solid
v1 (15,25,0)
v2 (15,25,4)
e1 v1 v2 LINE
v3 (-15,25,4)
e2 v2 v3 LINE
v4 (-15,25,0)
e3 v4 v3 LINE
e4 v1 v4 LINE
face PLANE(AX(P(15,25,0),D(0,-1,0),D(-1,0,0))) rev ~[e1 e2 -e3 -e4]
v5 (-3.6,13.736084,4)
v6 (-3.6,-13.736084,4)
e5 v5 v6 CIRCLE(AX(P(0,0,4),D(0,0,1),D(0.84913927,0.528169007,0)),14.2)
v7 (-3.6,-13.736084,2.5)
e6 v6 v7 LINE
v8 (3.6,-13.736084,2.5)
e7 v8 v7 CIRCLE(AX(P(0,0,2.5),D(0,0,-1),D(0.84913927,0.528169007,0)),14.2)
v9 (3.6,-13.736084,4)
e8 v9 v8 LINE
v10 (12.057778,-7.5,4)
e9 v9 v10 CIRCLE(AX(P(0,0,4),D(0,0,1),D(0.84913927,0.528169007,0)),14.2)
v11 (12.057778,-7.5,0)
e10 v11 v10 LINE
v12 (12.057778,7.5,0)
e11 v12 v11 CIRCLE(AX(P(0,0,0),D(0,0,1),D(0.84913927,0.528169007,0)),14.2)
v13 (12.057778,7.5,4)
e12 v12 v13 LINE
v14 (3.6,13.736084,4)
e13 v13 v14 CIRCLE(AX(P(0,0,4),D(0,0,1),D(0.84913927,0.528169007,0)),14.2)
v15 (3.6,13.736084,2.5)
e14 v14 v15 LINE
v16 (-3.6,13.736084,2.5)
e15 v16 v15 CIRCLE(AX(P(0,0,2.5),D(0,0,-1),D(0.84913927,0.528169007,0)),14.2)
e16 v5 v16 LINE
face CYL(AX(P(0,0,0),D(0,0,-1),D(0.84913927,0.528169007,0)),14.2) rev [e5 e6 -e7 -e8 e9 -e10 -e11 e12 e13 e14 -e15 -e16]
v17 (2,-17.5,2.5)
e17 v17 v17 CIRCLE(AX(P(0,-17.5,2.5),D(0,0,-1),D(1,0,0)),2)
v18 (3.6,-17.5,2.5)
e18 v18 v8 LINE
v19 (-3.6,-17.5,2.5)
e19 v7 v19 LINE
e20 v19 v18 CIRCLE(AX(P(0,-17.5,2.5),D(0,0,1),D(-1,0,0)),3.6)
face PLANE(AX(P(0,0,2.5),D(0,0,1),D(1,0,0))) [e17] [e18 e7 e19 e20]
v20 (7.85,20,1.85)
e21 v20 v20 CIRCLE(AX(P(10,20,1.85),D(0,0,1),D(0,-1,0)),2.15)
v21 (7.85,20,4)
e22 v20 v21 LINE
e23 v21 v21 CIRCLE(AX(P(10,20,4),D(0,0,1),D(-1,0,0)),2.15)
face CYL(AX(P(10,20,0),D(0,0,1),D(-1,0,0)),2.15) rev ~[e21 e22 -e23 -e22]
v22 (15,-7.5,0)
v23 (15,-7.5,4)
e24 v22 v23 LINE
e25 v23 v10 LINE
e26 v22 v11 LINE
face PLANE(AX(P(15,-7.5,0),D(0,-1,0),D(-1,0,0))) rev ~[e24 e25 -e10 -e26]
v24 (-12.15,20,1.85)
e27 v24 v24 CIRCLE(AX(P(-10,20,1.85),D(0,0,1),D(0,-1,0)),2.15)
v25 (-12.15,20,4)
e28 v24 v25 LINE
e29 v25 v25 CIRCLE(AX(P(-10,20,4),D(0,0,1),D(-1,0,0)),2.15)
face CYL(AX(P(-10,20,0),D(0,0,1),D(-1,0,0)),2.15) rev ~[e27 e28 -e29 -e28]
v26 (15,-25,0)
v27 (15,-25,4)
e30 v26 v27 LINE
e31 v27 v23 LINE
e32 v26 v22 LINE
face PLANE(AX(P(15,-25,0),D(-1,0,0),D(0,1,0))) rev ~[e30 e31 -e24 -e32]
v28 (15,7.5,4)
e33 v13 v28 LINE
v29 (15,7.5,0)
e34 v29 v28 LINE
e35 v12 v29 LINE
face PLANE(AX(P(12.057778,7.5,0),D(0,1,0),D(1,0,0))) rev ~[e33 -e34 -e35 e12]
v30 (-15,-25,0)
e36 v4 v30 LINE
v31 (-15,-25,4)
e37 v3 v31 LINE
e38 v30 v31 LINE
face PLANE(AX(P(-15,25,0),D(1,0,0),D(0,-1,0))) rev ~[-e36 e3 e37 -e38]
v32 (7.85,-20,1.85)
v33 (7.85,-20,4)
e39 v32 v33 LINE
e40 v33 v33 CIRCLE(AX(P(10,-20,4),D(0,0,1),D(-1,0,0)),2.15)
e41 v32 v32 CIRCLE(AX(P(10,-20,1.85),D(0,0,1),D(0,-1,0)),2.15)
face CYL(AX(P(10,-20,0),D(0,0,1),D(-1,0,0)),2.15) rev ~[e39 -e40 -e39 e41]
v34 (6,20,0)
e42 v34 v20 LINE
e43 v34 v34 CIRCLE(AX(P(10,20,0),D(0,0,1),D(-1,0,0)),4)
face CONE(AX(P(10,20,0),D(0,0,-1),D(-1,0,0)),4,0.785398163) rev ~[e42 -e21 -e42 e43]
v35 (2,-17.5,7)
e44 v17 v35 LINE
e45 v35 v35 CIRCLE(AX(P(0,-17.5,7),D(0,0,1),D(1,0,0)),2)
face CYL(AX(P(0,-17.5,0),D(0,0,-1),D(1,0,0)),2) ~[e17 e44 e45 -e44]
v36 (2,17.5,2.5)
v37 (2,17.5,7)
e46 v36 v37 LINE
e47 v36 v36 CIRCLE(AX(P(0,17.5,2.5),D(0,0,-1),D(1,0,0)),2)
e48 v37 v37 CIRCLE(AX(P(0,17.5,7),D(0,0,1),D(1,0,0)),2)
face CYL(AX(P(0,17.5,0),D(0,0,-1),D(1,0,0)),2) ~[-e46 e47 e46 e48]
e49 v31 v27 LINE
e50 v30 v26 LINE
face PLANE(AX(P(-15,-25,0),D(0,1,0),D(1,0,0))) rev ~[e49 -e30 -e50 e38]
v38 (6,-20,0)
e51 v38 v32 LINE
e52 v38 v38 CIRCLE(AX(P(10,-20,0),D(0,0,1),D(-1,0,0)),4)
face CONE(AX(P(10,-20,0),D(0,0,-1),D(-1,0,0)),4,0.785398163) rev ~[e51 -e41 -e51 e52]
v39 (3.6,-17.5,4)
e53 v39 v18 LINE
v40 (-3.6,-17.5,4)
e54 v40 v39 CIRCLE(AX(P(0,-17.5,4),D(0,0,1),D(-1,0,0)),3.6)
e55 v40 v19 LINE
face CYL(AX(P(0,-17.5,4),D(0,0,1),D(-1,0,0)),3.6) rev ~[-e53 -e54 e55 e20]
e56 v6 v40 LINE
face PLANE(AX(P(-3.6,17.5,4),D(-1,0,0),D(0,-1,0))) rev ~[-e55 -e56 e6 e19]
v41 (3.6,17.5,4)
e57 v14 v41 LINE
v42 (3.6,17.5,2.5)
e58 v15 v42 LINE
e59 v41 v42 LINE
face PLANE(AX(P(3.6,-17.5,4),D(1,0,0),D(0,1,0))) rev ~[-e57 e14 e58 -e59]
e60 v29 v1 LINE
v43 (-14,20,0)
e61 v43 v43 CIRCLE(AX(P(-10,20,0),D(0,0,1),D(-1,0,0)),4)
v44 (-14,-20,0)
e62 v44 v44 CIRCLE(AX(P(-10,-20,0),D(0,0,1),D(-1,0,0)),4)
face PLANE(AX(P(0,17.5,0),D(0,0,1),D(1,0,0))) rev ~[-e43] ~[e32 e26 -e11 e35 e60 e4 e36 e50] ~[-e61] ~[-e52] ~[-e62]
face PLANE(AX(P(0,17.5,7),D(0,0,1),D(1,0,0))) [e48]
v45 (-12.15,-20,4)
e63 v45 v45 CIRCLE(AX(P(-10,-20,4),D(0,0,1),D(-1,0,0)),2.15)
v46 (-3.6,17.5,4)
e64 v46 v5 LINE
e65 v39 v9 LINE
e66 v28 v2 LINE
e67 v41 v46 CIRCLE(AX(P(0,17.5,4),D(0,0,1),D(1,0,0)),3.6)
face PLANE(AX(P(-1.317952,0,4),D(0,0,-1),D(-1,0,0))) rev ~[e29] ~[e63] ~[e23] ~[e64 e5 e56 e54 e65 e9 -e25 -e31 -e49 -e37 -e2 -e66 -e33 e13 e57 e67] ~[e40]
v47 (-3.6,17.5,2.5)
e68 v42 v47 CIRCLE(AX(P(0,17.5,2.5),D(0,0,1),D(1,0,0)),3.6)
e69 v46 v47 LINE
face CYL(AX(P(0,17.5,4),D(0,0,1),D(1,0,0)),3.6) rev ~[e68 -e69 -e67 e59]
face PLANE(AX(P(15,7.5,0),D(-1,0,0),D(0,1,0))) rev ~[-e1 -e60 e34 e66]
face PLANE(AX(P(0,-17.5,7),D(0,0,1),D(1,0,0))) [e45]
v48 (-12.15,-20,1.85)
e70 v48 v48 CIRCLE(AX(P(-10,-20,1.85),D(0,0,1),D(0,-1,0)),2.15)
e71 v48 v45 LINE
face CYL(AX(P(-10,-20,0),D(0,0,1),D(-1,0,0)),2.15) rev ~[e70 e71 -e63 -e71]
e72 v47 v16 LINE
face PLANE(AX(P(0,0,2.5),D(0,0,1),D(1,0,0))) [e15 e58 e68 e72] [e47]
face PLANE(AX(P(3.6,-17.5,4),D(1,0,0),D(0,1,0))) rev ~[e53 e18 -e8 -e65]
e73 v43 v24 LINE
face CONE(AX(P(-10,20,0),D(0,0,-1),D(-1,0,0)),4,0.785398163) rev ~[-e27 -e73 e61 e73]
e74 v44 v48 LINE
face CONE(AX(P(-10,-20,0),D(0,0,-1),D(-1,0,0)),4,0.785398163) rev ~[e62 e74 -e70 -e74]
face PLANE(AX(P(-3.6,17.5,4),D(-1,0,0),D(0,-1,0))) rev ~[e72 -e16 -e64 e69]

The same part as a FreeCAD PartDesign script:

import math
import FreeCAD as App
import Part
import Sketcher
from FreeCAD import Vector
Q = App.Units.Quantity

doc = App.newDocument("Part")
body = doc.addObject("PartDesign::Body", "Body")

# Sketch on XY plane
sketch1 = body.newObject("Sketcher::SketchObject", "Sketch")
sketch1.AttachmentSupport = (doc.getObject("XY_Plane"), [""])
sketch1.MapMode = "FlatFace"
sketch1.addGeometry([
    Part.ArcOfCircle(Part.Circle(Vector(0, 0, 0), Vector(0, 0, 1), 14.2), math.radians(32), math.radians(328)),  # 0
    Part.LineSegment(Vector(12.1, 7.5, 0), Vector(15, 7.5, 0)),  # 1
    Part.LineSegment(Vector(15, 7.5, 0), Vector(15, 25, 0)),  # 2
    Part.LineSegment(Vector(15, 25, 0), Vector(-15, 25, 0)),  # 3
    Part.LineSegment(Vector(-15, 25, 0), Vector(-15, -25, 0)),  # 4
    Part.LineSegment(Vector(-15, -25, 0), Vector(15, -25, 0)),  # 5
    Part.LineSegment(Vector(15, -25, 0), Vector(15, -7.5, 0)),  # 6
    Part.LineSegment(Vector(15, -7.5, 0), Vector(12.1, -7.5, 0)),  # 7
], False)
sketch1.addConstraint([
    Sketcher.Constraint("Coincident", 0, 1, 1, 1),
    Sketcher.Constraint("Coincident", 1, 2, 2, 1),
    Sketcher.Constraint("Coincident", 2, 2, 3, 1),
    Sketcher.Constraint("Coincident", 3, 2, 4, 1),
    Sketcher.Constraint("Coincident", 4, 2, 5, 1),
    Sketcher.Constraint("Coincident", 5, 2, 6, 1),
    Sketcher.Constraint("Coincident", 6, 2, 7, 1),
    Sketcher.Constraint("Coincident", 7, 2, 0, 2),
    Sketcher.Constraint("Horizontal", 1),
    Sketcher.Constraint("Vertical", 2),
    Sketcher.Constraint("Horizontal", 3),
    Sketcher.Constraint("Vertical", 4),
    Sketcher.Constraint("Horizontal", 5),
    Sketcher.Constraint("Vertical", 6),
    Sketcher.Constraint("Horizontal", 7),
    Sketcher.Constraint("Coincident", 0, 3, -1, 1),
    Sketcher.Constraint("Symmetric", 2, 2, 4, 2, -1, 1),
    Sketcher.Constraint("Symmetric", 1, 2, 6, 2, -1),
    Sketcher.Constraint("Radius", 0, Q("14.2 mm")),
    Sketcher.Constraint("DistanceX", 3, 2, 3, 1, Q("30 mm")),
    Sketcher.Constraint("DistanceY", 4, 2, 4, 1, Q("50 mm")),
    Sketcher.Constraint("DistanceY", 2, 1, 2, 2, Q("17.5 mm")),
])
pad1 = body.newObject("PartDesign::Pad", "Pad")
pad1.Profile = sketch1
pad1.Length = 4

# Sketch on XY plane
sketch2 = body.newObject("Sketcher::SketchObject", "Sketch001")
sketch2.AttachmentSupport = (doc.getObject("XY_Plane"), [""])
sketch2.MapMode = "FlatFace"
sketch2.AttachmentOffset = App.Placement(Vector(0, 0, 4), App.Rotation())
sketch2.addGeometry([
    Part.ArcOfCircle(Part.Circle(Vector(0, 17.5, 0), Vector(0, 0, 1), 3.6), math.radians(0), math.radians(180)),
    Part.LineSegment(Vector(-3.6, 17.5, 0), Vector(-3.6, -17.5, 0)),
    Part.ArcOfCircle(Part.Circle(Vector(0, -17.5, 0), Vector(0, 0, 1), 3.6), math.radians(180), math.radians(360)),
    Part.LineSegment(Vector(3.6, -17.5, 0), Vector(3.6, 17.5, 0)),
], False)
sketch2.addConstraint([
    Sketcher.Constraint("Tangent", 0, 2, 1, 1),
    Sketcher.Constraint("Tangent", 1, 2, 2, 1),
    Sketcher.Constraint("Tangent", 2, 2, 3, 1),
    Sketcher.Constraint("Tangent", 3, 2, 0, 1),
    Sketcher.Constraint("Vertical", 1),
    Sketcher.Constraint("Vertical", 3),
    Sketcher.Constraint("Symmetric", 0, 3, 2, 3, -1, 1),
    Sketcher.Constraint("Radius", 0, Q("3.6 mm")),
    Sketcher.Constraint("DistanceY", 1, 2, 1, 1, Q("35 mm")),
])
pocket1 = body.newObject("PartDesign::Pocket", "Pocket")
pocket1.Profile = sketch2
pocket1.Length = 1.5

# Sketch on XY plane
sketch3 = body.newObject("Sketcher::SketchObject", "Sketch002")
sketch3.AttachmentSupport = (doc.getObject("XY_Plane"), [""])
sketch3.MapMode = "FlatFace"
sketch3.addGeometry([
    Part.Circle(Vector(0, 17.5, 0), Vector(0, 0, 1), 2),
    Part.Circle(Vector(0, -17.5, 0), Vector(0, 0, 1), 2),
], False)
sketch3.addConstraint([
    Sketcher.Constraint("Equal", 0, 1),
    Sketcher.Constraint("Symmetric", 0, 3, 1, 3, -1, 1),
    Sketcher.Constraint("PointOnObject", 0, 3, -2),
    Sketcher.Constraint("Diameter", 0, Q("4 mm")),
    Sketcher.Constraint("DistanceY", 1, 3, 0, 3, Q("35 mm")),
])
pad2 = body.newObject("PartDesign::Pad", "Pad001")
pad2.Profile = sketch3
pad2.Length = 7

# Sketch on XY plane
sketch4 = body.newObject("Sketcher::SketchObject", "Sketch003")
sketch4.AttachmentSupport = (doc.getObject("XY_Plane"), [""])
sketch4.MapMode = "FlatFace"
sketch4.addGeometry([
    Part.Circle(Vector(-10, 20, 0), Vector(0, 0, 1), 2.1),
    Part.Circle(Vector(10, 20, 0), Vector(0, 0, 1), 2.1),
    Part.Circle(Vector(10, -20, 0), Vector(0, 0, 1), 2.1),
    Part.Circle(Vector(-10, -20, 0), Vector(0, 0, 1), 2.1),
], False)
sketch4.addConstraint([
    Sketcher.Constraint("Equal", 0, 1),
    Sketcher.Constraint("Equal", 1, 2),
    Sketcher.Constraint("Equal", 2, 3),
    Sketcher.Constraint("Symmetric", 0, 3, 2, 3, -1, 1),
    Sketcher.Constraint("Symmetric", 1, 3, 3, 3, -1, 1),
    Sketcher.Constraint("Symmetric", 0, 3, 1, 3, -2),
    Sketcher.Constraint("Diameter", 0, Q("4.3 mm")),
    Sketcher.Constraint("DistanceX", 0, 3, -1, 1, Q("10 mm")),
    Sketcher.Constraint("DistanceY", -1, 1, 0, 3, Q("20 mm")),
])
doc.recompute()
hole = body.newObject("PartDesign::Hole", "Hole")
hole.Profile = sketch4
hole.ThreadType = "None"
hole.Diameter = 4.3
hole.DepthType = "Dimension"
hole.Depth = 25
hole.DrillPoint = "Flat"
hole.HoleCutType = "Countersink"
hole.HoleCutDiameter = 8
hole.HoleCutCountersinkAngle = 90
hole.Reversed = True

doc.recompute()
